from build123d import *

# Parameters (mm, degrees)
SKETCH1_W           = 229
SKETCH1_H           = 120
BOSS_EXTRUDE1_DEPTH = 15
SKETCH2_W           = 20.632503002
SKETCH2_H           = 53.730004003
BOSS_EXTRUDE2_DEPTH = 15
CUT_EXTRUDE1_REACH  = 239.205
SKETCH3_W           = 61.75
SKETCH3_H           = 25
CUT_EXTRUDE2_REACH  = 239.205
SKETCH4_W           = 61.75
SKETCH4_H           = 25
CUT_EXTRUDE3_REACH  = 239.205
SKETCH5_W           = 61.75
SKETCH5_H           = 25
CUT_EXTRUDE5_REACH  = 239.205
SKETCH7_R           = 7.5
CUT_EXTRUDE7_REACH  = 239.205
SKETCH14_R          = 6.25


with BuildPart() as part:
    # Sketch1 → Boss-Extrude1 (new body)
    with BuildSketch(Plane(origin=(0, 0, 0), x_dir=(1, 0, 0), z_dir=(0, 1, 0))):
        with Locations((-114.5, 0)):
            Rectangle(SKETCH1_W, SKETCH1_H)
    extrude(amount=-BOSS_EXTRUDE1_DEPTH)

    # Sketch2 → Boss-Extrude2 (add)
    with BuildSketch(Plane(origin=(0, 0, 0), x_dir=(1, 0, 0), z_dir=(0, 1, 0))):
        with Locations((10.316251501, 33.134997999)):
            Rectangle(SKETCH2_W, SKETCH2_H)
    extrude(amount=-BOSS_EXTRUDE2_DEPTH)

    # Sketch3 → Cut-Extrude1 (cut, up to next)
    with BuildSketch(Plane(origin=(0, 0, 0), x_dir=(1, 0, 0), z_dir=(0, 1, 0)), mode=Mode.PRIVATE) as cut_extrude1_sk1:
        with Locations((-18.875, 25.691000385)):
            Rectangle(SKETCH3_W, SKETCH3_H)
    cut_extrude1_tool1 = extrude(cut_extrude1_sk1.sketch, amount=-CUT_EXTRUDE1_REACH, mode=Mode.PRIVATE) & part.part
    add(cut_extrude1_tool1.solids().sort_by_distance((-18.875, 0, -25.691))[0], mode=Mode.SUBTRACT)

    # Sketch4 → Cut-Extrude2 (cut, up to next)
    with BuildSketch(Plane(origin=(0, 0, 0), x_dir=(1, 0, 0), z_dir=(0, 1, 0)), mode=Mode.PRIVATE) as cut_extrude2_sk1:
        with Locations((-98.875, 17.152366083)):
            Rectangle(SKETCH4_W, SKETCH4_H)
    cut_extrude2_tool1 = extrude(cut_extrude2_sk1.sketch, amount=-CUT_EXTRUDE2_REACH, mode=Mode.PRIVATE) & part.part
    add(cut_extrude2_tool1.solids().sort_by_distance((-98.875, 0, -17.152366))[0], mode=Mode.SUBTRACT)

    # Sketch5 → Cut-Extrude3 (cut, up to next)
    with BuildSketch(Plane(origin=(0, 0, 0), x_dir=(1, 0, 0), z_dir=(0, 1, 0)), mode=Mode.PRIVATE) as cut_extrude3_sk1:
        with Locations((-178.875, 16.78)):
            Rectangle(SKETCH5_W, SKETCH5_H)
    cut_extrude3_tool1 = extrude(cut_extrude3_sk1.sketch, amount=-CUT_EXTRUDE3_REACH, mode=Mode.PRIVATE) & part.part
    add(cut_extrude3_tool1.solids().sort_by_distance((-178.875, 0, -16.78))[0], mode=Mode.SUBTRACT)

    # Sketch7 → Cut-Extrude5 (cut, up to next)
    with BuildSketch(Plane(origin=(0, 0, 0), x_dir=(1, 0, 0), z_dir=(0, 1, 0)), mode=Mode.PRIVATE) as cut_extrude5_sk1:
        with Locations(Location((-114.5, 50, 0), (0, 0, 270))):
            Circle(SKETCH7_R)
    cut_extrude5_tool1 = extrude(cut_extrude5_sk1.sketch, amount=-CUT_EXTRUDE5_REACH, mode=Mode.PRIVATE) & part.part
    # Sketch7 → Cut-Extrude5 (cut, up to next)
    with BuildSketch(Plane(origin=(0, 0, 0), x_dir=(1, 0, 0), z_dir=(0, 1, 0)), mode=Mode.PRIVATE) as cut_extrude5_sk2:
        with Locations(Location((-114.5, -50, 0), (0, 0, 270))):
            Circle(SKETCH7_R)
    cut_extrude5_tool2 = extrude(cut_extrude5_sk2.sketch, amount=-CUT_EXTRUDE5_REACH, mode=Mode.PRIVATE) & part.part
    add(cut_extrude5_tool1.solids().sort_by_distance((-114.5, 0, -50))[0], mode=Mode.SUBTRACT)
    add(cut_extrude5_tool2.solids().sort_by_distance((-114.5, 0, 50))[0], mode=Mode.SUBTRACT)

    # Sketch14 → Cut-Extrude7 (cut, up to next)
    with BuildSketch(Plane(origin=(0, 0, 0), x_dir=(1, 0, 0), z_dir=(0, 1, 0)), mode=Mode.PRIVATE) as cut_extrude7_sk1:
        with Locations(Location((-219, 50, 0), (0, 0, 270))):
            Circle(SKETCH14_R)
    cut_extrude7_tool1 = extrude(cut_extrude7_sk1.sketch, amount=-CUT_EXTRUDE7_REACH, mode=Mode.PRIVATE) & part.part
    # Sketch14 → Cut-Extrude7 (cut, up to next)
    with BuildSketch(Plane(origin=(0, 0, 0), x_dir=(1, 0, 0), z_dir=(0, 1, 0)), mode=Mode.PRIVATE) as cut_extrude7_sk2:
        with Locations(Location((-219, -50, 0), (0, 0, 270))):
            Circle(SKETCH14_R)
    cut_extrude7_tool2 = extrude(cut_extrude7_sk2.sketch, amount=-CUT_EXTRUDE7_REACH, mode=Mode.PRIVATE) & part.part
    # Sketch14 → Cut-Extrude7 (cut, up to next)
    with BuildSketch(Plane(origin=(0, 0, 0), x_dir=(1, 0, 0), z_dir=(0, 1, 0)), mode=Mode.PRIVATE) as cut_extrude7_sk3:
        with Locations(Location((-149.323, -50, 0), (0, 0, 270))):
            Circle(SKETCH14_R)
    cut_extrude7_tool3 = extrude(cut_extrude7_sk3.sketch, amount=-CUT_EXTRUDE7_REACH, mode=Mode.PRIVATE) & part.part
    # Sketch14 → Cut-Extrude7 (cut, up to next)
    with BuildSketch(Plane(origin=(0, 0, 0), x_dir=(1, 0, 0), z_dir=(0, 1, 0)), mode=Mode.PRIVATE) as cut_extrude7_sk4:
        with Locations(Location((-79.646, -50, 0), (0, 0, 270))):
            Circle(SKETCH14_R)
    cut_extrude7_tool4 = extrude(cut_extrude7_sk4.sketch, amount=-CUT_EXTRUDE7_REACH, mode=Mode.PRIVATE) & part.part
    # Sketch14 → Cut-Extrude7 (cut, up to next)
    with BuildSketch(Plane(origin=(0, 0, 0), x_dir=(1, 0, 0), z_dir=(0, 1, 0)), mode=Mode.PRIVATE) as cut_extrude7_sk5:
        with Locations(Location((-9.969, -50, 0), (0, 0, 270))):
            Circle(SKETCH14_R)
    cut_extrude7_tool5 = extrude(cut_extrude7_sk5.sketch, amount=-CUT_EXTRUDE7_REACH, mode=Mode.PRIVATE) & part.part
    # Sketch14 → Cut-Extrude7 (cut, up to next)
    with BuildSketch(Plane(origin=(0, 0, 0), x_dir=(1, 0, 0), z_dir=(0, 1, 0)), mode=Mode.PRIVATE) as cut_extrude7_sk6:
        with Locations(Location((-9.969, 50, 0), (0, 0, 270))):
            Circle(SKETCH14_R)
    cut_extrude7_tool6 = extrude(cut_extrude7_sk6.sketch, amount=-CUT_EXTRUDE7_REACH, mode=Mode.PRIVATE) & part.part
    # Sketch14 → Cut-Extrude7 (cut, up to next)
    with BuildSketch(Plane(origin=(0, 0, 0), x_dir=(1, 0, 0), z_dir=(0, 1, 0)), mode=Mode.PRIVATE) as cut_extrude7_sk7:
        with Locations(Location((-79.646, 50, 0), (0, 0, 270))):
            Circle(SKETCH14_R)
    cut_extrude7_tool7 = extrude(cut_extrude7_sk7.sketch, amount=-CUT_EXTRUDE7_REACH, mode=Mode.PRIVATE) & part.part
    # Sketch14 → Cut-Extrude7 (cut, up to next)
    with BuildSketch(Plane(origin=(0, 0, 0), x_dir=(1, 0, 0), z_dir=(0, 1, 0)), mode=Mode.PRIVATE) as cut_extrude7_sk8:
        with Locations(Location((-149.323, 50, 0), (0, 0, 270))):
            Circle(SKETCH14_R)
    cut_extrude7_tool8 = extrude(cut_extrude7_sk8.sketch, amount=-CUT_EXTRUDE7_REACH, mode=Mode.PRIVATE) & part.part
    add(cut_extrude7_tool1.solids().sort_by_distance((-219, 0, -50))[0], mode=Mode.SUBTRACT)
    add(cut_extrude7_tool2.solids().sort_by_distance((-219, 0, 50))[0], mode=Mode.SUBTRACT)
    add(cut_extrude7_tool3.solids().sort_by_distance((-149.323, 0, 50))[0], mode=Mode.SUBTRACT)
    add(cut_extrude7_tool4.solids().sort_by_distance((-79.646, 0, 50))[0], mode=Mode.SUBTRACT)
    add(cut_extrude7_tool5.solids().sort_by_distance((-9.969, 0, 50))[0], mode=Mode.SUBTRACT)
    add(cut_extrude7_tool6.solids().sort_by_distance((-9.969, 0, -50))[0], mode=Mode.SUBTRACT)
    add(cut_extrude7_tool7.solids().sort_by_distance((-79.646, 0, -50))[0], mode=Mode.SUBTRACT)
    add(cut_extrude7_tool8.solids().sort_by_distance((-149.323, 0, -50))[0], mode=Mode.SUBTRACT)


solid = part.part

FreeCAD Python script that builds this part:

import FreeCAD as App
import Part
import Sketcher
Q = App.Units.Quantity


def add_polygon(sketch, points):
    """Adds a closed chain of lines whose ends are joined by coincident constraints."""
    first, n = sketch.GeometryCount, len(points)
    for a, b in zip(points, points[1:] + points[:1]):
        sketch.addGeometry(Part.LineSegment(App.Vector(*a, 0), App.Vector(*b, 0)), False)
    for i in range(n):
        sketch.addConstraint(Sketcher.Constraint("Coincident", first + i, 2, first + (i + 1) % n, 1))

doc = App.newDocument("Part")
params = doc.addObject("Spreadsheet::Sheet", "Params")
for row, (alias, value) in enumerate([
    ("sketch1_width", "229 mm"),
    ("sketch1_height", "120 mm"),
    ("pad1_length", "15 mm"),
    ("pad2_length", "15 mm"),
    ("sketch3_height", "25 mm"),
    ("sketch3_width", "61.75 mm"),
    ("sketch4_height", "25 mm"),
    ("sketch4_width", "61.75 mm"),
    ("sketch5_height", "25 mm"),
    ("sketch5_width", "61.75 mm"),
    ("sketch6_diameter", "15 mm"),
    ("sketch7_diameter", "15 mm"),
    ("sketch8_diameter", "12.5 mm"),
    ("sketch9_diameter", "12.5 mm"),
    ("sketch10_diameter", "12.5 mm"),
    ("sketch11_diameter", "12.5 mm"),
    ("sketch12_diameter", "12.5 mm"),
    ("sketch13_diameter", "12.5 mm"),
    ("sketch14_diameter", "12.5 mm"),
    ("sketch15_diameter", "12.5 mm"),
], start=1):
    params.set(f"A{row}", alias)
    params.set(f"B{row}", "=" + value)
    params.setAlias(f"B{row}", alias)

body = doc.addObject("PartDesign::Body", "Body")

sketch1 = body.newObject("Sketcher::SketchObject", "Sketch")
sketch1.AttachmentSupport = (doc.getObject("XZ_Plane"), [""])
sketch1.MapMode = "FlatFace"
add_polygon(sketch1, [(-229, -60), (-229, 60), (0, 60), (0, -60)])
sketch1.addConstraint(Sketcher.Constraint("Vertical", 0))
sketch1.addConstraint(Sketcher.Constraint("Horizontal", 1))
sketch1.addConstraint(Sketcher.Constraint("Vertical", 2))
sketch1.addConstraint(Sketcher.Constraint("Horizontal", 3))
sketch1.addConstraint(Sketcher.Constraint("Symmetric", 1, 2, 2, 2, -1, 1))
sketch1.addConstraint(Sketcher.Constraint("DistanceX", 1, 1, 1, 2, Q("229 mm")))
sketch1.addConstraint(Sketcher.Constraint("DistanceY", 0, 1, 0, 2, Q("120 mm")))
sketch1.setExpression("Constraints[9]", "Params.sketch1_width")
sketch1.setExpression("Constraints[10]", "Params.sketch1_height")
pad1 = body.newObject("PartDesign::Pad", "Pad")
pad1.Profile = sketch1
pad1.setExpression("Length", "Params.pad1_length")

sketch2 = body.newObject("Sketcher::SketchObject", "Sketch001")
sketch2.AttachmentSupport = (doc.getObject("XZ_Plane"), [""])
sketch2.MapMode = "FlatFace"
add_polygon(sketch2, [(0, -60), (0, -6.269996), (20.632503, -6.269996), (20.632503, -60)])
sketch2.addConstraint(Sketcher.Constraint("Vertical", 0))
sketch2.addConstraint(Sketcher.Constraint("Horizontal", 1))
sketch2.addConstraint(Sketcher.Constraint("Vertical", 2))
sketch2.addConstraint(Sketcher.Constraint("Horizontal", 3))
sketch2.addConstraint(Sketcher.Constraint("PointOnObject", 0, 2, -2))
sketch2.addConstraint(Sketcher.Constraint("DistanceY", 2, 2, -1, 1, Q("60 mm")))
sketch2.addConstraint(Sketcher.Constraint("DistanceX", 1, 1, 1, 2, Q("20.632503 mm")))
sketch2.addConstraint(Sketcher.Constraint("DistanceY", 0, 1, 0, 2, Q("53.730004 mm")))
pad2 = body.newObject("PartDesign::Pad", "Pad001")
pad2.Profile = sketch2
pad2.setExpression("Length", "Params.pad2_length")

sketch3 = body.newObject("Sketcher::SketchObject", "Sketch002")
sketch3.AttachmentSupport = (doc.getObject("XZ_Plane"), [""])
sketch3.MapMode = "FlatFace"
add_polygon(sketch3, [(-49.75, -38.191), (-49.75, -13.191), (12, -13.191), (12, -38.191)])
sketch3.addConstraint(Sketcher.Constraint("Vertical", 0))
sketch3.addConstraint(Sketcher.Constraint("Horizontal", 1))
sketch3.addConstraint(Sketcher.Constraint("Vertical", 2))
sketch3.addConstraint(Sketcher.Constraint("Horizontal", 3))
sketch3.addConstraint(Sketcher.Constraint("DistanceY", 0, 1, 0, 2, Q("25 mm")))
sketch3.addConstraint(Sketcher.Constraint("DistanceX", -1, 1, 1, 2, Q("12 mm")))
sketch3.addConstraint(Sketcher.Constraint("DistanceX", 1, 1, 1, 2, Q("61.75 mm")))
sketch3.addConstraint(Sketcher.Constraint("DistanceY", 0, 2, -1, 1, Q("13.191 mm")))
sketch3.setExpression("Constraints[8]", "Params.sketch3_height")
sketch3.setExpression("Constraints[10]", "Params.sketch3_width")
pocket1 = body.newObject("PartDesign::Pocket", "Pocket")
pocket1.Profile = sketch3
pocket1.Type = "UpToFirst"
pocket1.Reversed = True

sketch4 = body.newObject("Sketcher::SketchObject", "Sketch003")
sketch4.AttachmentSupport = (doc.getObject("XZ_Plane"), [""])
sketch4.MapMode = "FlatFace"
add_polygon(sketch4, [(-129.75, -29.652366), (-129.75, -4.652366), (-68, -4.652366), (-68, -29.652366)])
sketch4.addConstraint(Sketcher.Constraint("Vertical", 0))
sketch4.addConstraint(Sketcher.Constraint("Horizontal", 1))
sketch4.addConstraint(Sketcher.Constraint("Vertical", 2))
sketch4.addConstraint(Sketcher.Constraint("Horizontal", 3))
sketch4.addConstraint(Sketcher.Constraint("DistanceY", 0, 1, 0, 2, Q("25 mm")))
sketch4.addConstraint(Sketcher.Constraint("DistanceX", 1, 2, -1, 1, Q("68 mm")))
sketch4.addConstraint(Sketcher.Constraint("DistanceX", 1, 1, 1, 2, Q("61.75 mm")))
sketch4.addConstraint(Sketcher.Constraint("DistanceY", 0, 2, -1, 1, Q("4.652366 mm")))
sketch4.setExpression("Constraints[8]", "Params.sketch4_height")
sketch4.setExpression("Constraints[10]", "Params.sketch4_width")
pocket2 = body.newObject("PartDesign::Pocket", "Pocket001")
pocket2.Profile = sketch4
pocket2.Type = "UpToFirst"
pocket2.Reversed = True

sketch5 = body.newObject("Sketcher::SketchObject", "Sketch004")
sketch5.AttachmentSupport = (doc.getObject("XZ_Plane"), [""])
sketch5.MapMode = "FlatFace"
add_polygon(sketch5, [(-209.75, -29.28), (-209.75, -4.28), (-148, -4.28), (-148, -29.28)])
sketch5.addConstraint(Sketcher.Constraint("Vertical", 0))
sketch5.addConstraint(Sketcher.Constraint("Horizontal", 1))
sketch5.addConstraint(Sketcher.Constraint("Vertical", 2))
sketch5.addConstraint(Sketcher.Constraint("Horizontal", 3))
sketch5.addConstraint(Sketcher.Constraint("DistanceY", 0, 1, 0, 2, Q("25 mm")))
sketch5.addConstraint(Sketcher.Constraint("DistanceX", 1, 2, -1, 1, Q("148 mm")))
sketch5.addConstraint(Sketcher.Constraint("DistanceX", 1, 1, 1, 2, Q("61.75 mm")))
sketch5.addConstraint(Sketcher.Constraint("DistanceY", 0, 2, -1, 1, Q("4.28 mm")))
sketch5.setExpression("Constraints[8]", "Params.sketch5_height")
sketch5.setExpression("Constraints[10]", "Params.sketch5_width")
pocket3 = body.newObject("PartDesign::Pocket", "Pocket002")
pocket3.Profile = sketch5
pocket3.Type = "UpToFirst"
pocket3.Reversed = True

sketch6 = body.newObject("Sketcher::SketchObject", "Sketch005")
sketch6.AttachmentSupport = (doc.getObject("XZ_Plane"), [""])
sketch6.MapMode = "FlatFace"
sketch6.addGeometry(Part.Circle(App.Vector(-114.5, -50, 0), App.Vector(0, 0, 1), 7.5), False)
sketch6.addConstraint(Sketcher.Constraint("Diameter", 0, Q("15 mm")))
sketch6.addConstraint(Sketcher.Constraint("DistanceY", 0, 3, -1, 1, Q("50 mm")))
sketch6.addConstraint(Sketcher.Constraint("DistanceX", 0, 3, -1, 1, Q("114.5 mm")))
sketch6.setExpression("Constraints[0]", "Params.sketch6_diameter")
pocket4 = body.newObject("PartDesign::Pocket", "Pocket003")
pocket4.Profile = sketch6
pocket4.Type = "UpToFirst"
pocket4.Reversed = True

sketch7 = body.newObject("Sketcher::SketchObject", "Sketch006")
sketch7.AttachmentSupport = (doc.getObject("XZ_Plane"), [""])
sketch7.MapMode = "FlatFace"
sketch7.addGeometry(Part.Circle(App.Vector(-114.5, 50, 0), App.Vector(0, 0, 1), 7.5), False)
sketch7.addConstraint(Sketcher.Constraint("Diameter", 0, Q("15 mm")))
sketch7.addConstraint(Sketcher.Constraint("DistanceY", -1, 1, 0, 3, Q("50 mm")))
sketch7.addConstraint(Sketcher.Constraint("DistanceX", 0, 3, -1, 1, Q("114.5 mm")))
sketch7.setExpression("Constraints[0]", "Params.sketch7_diameter")
pocket5 = body.newObject("PartDesign::Pocket", "Pocket004")
pocket5.Profile = sketch7
pocket5.Type = "UpToFirst"
pocket5.Reversed = True

sketch8 = body.newObject("Sketcher::SketchObject", "Sketch007")
sketch8.AttachmentSupport = (doc.getObject("XZ_Plane"), [""])
sketch8.MapMode = "FlatFace"
sketch8.addGeometry(Part.Circle(App.Vector(-219, -50, 0), App.Vector(0, 0, 1), 6.25), False)
sketch8.addConstraint(Sketcher.Constraint("Diameter", 0, Q("12.5 mm")))
sketch8.addConstraint(Sketcher.Constraint("DistanceX", 0, 3, -1, 1, Q("219 mm")))
sketch8.addConstraint(Sketcher.Constraint("DistanceY", 0, 3, -1, 1, Q("50 mm")))
sketch8.setExpression("Constraints[0]", "Params.sketch8_diameter")
pocket6 = body.newObject("PartDesign::Pocket", "Pocket005")
pocket6.Profile = sketch8
pocket6.Type = "UpToFirst"
pocket6.Reversed = True

sketch9 = body.newObject("Sketcher::SketchObject", "Sketch008")
sketch9.AttachmentSupport = (doc.getObject("XZ_Plane"), [""])
sketch9.MapMode = "FlatFace"
sketch9.addGeometry(Part.Circle(App.Vector(-219, 50, 0), App.Vector(0, 0, 1), 6.25), False)
sketch9.addConstraint(Sketcher.Constraint("Diameter", 0, Q("12.5 mm")))
sketch9.addConstraint(Sketcher.Constraint("DistanceX", 0, 3, -1, 1, Q("219 mm")))
sketch9.addConstraint(Sketcher.Constraint("DistanceY", -1, 1, 0, 3, Q("50 mm")))
sketch9.setExpression("Constraints[0]", "Params.sketch9_diameter")
pocket7 = body.newObject("PartDesign::Pocket", "Pocket006")
pocket7.Profile = sketch9
pocket7.Type = "UpToFirst"
pocket7.Reversed = True

sketch10 = body.newObject("Sketcher::SketchObject", "Sketch009")
sketch10.AttachmentSupport = (doc.getObject("XZ_Plane"), [""])
sketch10.MapMode = "FlatFace"
sketch10.addGeometry(Part.Circle(App.Vector(-149.323, 50, 0), App.Vector(0, 0, 1), 6.25), False)
sketch10.addConstraint(Sketcher.Constraint("Diameter", 0, Q("12.5 mm")))
sketch10.addConstraint(Sketcher.Constraint("DistanceY", -1, 1, 0, 3, Q("50 mm")))
sketch10.addConstraint(Sketcher.Constraint("DistanceX", 0, 3, -1, 1, Q("149.323 mm")))
sketch10.setExpression("Constraints[0]", "Params.sketch10_diameter")
pocket8 = body.newObject("PartDesign::Pocket", "Pocket007")
pocket8.Profile = sketch10
pocket8.Type = "UpToFirst"
pocket8.Reversed = True

sketch11 = body.newObject("Sketcher::SketchObject", "Sketch010")
sketch11.AttachmentSupport = (doc.getObject("XZ_Plane"), [""])
sketch11.MapMode = "FlatFace"
sketch11.addGeometry(Part.Circle(App.Vector(-79.646, 50, 0), App.Vector(0, 0, 1), 6.25), False)
sketch11.addConstraint(Sketcher.Constraint("Diameter", 0, Q("12.5 mm")))
sketch11.addConstraint(Sketcher.Constraint("DistanceY", -1, 1, 0, 3, Q("50 mm")))
sketch11.addConstraint(Sketcher.Constraint("DistanceX", 0, 3, -1, 1, Q("79.646 mm")))
sketch11.setExpression("Constraints[0]", "Params.sketch11_diameter")
pocket9 = body.newObject("PartDesign::Pocket", "Pocket008")
pocket9.Profile = sketch11
pocket9.Type = "UpToFirst"
pocket9.Reversed = True

sketch12 = body.newObject("Sketcher::SketchObject", "Sketch011")
sketch12.AttachmentSupport = (doc.getObject("XZ_Plane"), [""])
sketch12.MapMode = "FlatFace"
sketch12.addGeometry(Part.Circle(App.Vector(-9.969, 50, 0), App.Vector(0, 0, 1), 6.25), False)
sketch12.addConstraint(Sketcher.Constraint("Diameter", 0, Q("12.5 mm")))
sketch12.addConstraint(Sketcher.Constraint("DistanceY", -1, 1, 0, 3, Q("50 mm")))
sketch12.addConstraint(Sketcher.Constraint("DistanceX", 0, 3, -1, 1, Q("9.969 mm")))
sketch12.setExpression("Constraints[0]", "Params.sketch12_diameter")
pocket10 = body.newObject("PartDesign::Pocket", "Pocket009")
pocket10.Profile = sketch12
pocket10.Type = "UpToFirst"
pocket10.Reversed = True

sketch13 = body.newObject("Sketcher::SketchObject", "Sketch012")
sketch13.AttachmentSupport = (doc.getObject("XZ_Plane"), [""])
sketch13.MapMode = "FlatFace"
sketch13.addGeometry(Part.Circle(App.Vector(-9.969, -50, 0), App.Vector(0, 0, 1), 6.25), False)
sketch13.addConstraint(Sketcher.Constraint("Diameter", 0, Q("12.5 mm")))
sketch13.addConstraint(Sketcher.Constraint("DistanceY", 0, 3, -1, 1, Q("50 mm")))
sketch13.addConstraint(Sketcher.Constraint("DistanceX", 0, 3, -1, 1, Q("9.969 mm")))
sketch13.setExpression("Constraints[0]", "Params.sketch13_diameter")
pocket11 = body.newObject("PartDesign::Pocket", "Pocket010")
pocket11.Profile = sketch13
pocket11.Type = "UpToFirst"
pocket11.Reversed = True

sketch14 = body.newObject("Sketcher::SketchObject", "Sketch013")
sketch14.AttachmentSupport = (doc.getObject("XZ_Plane"), [""])
sketch14.MapMode = "FlatFace"
sketch14.addGeometry(Part.Circle(App.Vector(-79.646, -50, 0), App.Vector(0, 0, 1), 6.25), False)
sketch14.addConstraint(Sketcher.Constraint("Diameter", 0, Q("12.5 mm")))
sketch14.addConstraint(Sketcher.Constraint("DistanceY", 0, 3, -1, 1, Q("50 mm")))
sketch14.addConstraint(Sketcher.Constraint("DistanceX", 0, 3, -1, 1, Q("79.646 mm")))
sketch14.setExpression("Constraints[0]", "Params.sketch14_diameter")
pocket12 = body.newObject("PartDesign::Pocket", "Pocket011")
pocket12.Profile = sketch14
pocket12.Type = "UpToFirst"
pocket12.Reversed = True

sketch15 = body.newObject("Sketcher::SketchObject", "Sketch014")
sketch15.AttachmentSupport = (doc.getObject("XZ_Plane"), [""])
sketch15.MapMode = "FlatFace"
sketch15.addGeometry(Part.Circle(App.Vector(-149.323, -50, 0), App.Vector(0, 0, 1), 6.25), False)
sketch15.addConstraint(Sketcher.Constraint("Diameter", 0, Q("12.5 mm")))
sketch15.addConstraint(Sketcher.Constraint("DistanceY", 0, 3, -1, 1, Q("50 mm")))
sketch15.addConstraint(Sketcher.Constraint("DistanceX", 0, 3, -1, 1, Q("149.323 mm")))
sketch15.setExpression("Constraints[0]", "Params.sketch15_diameter")
pocket13 = body.newObject("PartDesign::Pocket", "Pocket012")
pocket13.Profile = sketch15
pocket13.Type = "UpToFirst"
pocket13.Reversed = True

doc.recompute()
